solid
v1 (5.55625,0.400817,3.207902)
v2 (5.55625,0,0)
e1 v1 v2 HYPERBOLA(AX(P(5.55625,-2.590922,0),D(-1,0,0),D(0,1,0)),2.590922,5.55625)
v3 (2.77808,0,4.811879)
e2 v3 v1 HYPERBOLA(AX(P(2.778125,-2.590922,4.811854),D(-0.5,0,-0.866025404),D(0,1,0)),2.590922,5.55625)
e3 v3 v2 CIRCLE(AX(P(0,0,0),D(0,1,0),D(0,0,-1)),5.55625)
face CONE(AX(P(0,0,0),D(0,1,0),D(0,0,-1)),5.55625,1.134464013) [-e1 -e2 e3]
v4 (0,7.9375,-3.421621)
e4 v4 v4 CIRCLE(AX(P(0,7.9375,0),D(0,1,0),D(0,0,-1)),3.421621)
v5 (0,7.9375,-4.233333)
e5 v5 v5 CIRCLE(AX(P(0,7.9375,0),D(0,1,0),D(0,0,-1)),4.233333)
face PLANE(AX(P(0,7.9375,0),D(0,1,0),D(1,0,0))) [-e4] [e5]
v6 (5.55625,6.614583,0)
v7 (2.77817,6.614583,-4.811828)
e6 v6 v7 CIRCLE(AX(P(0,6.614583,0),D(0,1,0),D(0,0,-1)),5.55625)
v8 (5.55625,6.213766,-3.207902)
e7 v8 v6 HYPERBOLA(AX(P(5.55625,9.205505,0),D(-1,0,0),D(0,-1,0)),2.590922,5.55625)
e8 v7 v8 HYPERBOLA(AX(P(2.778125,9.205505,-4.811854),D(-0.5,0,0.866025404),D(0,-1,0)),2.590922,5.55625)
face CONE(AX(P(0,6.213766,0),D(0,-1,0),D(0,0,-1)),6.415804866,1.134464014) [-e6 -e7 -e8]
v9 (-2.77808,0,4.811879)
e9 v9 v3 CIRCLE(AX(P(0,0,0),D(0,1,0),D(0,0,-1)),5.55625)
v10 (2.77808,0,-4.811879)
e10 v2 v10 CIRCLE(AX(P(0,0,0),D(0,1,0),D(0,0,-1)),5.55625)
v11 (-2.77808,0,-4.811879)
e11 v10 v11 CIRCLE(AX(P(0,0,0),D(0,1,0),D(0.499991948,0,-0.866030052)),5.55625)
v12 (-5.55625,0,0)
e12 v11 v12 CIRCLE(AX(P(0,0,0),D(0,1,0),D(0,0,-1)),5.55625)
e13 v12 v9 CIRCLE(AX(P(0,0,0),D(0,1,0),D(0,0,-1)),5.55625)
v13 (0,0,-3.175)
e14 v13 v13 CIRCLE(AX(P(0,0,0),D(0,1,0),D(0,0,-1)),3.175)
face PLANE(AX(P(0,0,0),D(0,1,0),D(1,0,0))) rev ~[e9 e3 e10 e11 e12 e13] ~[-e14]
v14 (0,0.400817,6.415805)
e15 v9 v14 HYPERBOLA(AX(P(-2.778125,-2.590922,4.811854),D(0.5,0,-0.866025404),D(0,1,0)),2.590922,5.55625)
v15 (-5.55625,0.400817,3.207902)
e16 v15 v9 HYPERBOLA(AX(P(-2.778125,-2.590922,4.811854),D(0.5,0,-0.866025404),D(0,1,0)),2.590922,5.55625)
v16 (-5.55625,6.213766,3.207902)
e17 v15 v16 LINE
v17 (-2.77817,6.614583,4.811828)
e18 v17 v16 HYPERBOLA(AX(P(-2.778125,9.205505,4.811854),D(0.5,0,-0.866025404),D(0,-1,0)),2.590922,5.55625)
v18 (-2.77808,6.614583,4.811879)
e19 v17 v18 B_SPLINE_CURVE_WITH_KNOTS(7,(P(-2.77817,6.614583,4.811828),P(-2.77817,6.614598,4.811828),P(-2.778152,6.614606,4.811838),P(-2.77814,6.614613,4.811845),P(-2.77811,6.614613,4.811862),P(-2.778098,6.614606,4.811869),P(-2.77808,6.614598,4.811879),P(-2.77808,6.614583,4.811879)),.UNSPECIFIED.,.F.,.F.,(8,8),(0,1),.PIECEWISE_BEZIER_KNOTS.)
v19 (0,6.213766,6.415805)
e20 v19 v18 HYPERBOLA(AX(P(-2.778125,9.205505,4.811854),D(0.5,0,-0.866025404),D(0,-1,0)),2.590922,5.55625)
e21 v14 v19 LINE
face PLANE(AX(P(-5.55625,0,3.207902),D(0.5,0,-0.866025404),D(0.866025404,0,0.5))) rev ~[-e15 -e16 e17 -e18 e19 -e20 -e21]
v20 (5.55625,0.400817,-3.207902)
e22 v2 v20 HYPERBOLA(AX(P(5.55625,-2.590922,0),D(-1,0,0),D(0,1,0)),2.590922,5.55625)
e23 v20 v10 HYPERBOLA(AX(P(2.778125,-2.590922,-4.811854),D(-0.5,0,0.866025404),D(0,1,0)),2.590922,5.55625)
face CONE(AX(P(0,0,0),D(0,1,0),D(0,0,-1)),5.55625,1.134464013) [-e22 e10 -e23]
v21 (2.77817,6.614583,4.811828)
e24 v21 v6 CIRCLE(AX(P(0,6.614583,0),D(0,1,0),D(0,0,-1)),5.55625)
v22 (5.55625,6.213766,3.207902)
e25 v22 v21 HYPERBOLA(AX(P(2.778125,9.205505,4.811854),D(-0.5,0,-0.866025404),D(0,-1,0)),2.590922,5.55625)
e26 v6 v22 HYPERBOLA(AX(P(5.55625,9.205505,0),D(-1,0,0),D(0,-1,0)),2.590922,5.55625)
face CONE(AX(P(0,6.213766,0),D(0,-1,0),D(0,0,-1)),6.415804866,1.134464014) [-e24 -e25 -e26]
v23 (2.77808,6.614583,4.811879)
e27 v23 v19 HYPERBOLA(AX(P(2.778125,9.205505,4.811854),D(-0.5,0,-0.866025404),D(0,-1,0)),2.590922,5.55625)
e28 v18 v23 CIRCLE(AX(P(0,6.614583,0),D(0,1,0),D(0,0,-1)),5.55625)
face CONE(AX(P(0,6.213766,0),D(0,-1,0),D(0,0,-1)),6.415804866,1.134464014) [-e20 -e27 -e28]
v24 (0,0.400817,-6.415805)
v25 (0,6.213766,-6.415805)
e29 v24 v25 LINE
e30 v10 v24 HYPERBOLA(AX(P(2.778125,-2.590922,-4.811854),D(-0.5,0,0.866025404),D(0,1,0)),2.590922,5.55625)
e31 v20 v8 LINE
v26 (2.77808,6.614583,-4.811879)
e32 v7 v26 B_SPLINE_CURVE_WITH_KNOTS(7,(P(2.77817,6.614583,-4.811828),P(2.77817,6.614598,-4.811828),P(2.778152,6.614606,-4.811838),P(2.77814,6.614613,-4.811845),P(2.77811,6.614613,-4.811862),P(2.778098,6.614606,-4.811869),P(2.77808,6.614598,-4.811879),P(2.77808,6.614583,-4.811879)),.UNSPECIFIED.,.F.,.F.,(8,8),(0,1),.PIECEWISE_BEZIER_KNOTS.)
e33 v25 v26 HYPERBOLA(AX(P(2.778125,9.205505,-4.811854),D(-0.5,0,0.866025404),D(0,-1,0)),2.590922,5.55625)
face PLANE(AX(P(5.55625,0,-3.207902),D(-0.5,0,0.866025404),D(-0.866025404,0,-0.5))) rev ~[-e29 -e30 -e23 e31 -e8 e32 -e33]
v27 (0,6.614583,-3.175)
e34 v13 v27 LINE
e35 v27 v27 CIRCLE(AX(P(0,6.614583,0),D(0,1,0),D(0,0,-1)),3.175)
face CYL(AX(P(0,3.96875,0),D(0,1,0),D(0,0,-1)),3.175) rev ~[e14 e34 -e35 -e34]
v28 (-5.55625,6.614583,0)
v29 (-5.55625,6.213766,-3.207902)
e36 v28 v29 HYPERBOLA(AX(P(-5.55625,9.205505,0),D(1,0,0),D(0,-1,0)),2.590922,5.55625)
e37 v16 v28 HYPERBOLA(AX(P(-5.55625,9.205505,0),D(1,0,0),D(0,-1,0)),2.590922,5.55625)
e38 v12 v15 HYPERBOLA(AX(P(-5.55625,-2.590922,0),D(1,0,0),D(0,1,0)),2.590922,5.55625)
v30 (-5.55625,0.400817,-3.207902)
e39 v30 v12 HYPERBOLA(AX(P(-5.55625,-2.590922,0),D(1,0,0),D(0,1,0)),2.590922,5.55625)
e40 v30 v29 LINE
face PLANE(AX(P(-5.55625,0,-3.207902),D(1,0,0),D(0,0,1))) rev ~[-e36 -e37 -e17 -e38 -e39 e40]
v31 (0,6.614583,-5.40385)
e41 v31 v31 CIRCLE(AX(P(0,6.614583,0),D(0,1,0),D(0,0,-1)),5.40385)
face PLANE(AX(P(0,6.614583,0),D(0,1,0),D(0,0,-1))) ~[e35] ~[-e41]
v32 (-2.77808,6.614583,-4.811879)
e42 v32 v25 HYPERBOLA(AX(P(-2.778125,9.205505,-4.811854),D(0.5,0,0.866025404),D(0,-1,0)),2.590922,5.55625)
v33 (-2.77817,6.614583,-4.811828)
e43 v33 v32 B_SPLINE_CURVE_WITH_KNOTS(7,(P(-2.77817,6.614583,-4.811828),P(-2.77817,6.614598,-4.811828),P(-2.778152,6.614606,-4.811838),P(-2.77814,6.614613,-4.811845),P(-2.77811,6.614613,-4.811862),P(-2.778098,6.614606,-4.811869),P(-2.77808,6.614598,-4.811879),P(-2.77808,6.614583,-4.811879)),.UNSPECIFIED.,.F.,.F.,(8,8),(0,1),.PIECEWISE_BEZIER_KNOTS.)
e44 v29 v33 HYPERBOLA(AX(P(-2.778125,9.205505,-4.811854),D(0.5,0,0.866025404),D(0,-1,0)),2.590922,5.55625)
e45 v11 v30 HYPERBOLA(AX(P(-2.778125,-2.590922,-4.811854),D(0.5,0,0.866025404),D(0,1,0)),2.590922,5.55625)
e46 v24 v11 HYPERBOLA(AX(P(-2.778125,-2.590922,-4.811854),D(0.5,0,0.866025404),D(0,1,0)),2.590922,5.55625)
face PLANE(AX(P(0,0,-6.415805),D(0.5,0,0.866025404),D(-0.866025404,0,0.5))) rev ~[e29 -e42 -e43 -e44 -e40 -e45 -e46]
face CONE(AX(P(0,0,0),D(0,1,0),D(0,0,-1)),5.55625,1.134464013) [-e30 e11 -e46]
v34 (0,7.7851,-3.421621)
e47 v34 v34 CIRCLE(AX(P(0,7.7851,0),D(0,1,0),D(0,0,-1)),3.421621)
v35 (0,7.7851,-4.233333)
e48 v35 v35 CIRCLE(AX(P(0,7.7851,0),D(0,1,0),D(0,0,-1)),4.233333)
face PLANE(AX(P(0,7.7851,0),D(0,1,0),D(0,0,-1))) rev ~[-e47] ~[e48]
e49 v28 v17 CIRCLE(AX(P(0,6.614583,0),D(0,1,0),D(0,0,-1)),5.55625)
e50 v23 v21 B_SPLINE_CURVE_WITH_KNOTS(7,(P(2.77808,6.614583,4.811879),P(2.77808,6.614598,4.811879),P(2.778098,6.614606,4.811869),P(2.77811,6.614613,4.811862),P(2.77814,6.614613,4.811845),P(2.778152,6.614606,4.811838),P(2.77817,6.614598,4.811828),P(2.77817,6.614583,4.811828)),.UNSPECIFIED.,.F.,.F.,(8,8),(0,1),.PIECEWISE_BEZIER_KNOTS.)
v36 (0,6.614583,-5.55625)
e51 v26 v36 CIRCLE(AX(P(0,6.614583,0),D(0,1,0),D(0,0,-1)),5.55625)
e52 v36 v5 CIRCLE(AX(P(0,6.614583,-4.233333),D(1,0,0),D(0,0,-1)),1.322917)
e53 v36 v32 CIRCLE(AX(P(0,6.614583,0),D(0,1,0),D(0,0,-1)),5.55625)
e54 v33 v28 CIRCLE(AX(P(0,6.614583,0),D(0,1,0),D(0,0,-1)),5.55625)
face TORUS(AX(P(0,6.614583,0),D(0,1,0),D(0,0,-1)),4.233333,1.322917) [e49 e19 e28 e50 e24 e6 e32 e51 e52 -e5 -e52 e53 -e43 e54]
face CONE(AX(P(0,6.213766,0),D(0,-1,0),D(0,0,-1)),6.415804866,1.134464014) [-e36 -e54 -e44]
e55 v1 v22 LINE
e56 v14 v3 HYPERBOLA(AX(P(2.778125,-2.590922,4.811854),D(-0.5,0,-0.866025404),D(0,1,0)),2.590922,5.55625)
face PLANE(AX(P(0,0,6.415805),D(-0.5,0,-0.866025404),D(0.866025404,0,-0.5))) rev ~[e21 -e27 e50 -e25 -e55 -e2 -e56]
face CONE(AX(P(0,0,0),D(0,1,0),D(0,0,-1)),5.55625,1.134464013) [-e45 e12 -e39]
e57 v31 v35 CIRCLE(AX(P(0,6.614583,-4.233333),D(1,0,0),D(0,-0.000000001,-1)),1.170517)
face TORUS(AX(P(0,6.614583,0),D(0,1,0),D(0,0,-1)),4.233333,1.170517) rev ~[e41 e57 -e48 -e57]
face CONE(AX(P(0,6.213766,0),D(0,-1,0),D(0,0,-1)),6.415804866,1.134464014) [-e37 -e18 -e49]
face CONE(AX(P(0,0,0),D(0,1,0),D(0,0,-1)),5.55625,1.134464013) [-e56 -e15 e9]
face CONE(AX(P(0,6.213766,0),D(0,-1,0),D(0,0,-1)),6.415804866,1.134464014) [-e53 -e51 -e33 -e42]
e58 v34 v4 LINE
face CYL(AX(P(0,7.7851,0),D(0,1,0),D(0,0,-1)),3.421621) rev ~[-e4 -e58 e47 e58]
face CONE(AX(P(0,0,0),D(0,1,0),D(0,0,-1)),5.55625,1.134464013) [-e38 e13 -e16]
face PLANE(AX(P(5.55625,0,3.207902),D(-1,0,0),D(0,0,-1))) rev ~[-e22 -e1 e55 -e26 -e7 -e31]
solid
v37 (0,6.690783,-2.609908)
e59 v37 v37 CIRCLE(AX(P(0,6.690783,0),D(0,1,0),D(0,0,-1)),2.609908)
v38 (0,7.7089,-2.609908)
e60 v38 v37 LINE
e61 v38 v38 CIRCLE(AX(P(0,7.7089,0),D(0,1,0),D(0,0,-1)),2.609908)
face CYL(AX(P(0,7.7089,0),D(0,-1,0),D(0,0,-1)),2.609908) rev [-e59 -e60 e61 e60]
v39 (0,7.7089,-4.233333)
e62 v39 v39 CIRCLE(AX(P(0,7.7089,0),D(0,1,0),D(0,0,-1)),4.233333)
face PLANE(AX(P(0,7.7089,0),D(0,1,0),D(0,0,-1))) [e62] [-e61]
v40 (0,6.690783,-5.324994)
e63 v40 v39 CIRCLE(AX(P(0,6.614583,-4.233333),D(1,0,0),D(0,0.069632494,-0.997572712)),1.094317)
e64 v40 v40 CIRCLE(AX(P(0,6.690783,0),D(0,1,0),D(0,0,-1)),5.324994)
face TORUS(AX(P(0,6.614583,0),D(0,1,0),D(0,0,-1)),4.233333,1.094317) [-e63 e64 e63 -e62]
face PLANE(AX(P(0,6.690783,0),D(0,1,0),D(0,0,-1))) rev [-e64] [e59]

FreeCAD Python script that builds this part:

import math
import FreeCAD as App
import Part
import Sketcher
Q = App.Units.Quantity


def add_polygon(sketch, points):
    """Adds a closed chain of lines whose ends are joined by coincident constraints."""
    first, n = sketch.GeometryCount, len(points)
    for a, b in zip(points, points[1:] + points[:1]):
        sketch.addGeometry(Part.LineSegment(App.Vector(*a, 0), App.Vector(*b, 0)), False)
    for i in range(n):
        sketch.addConstraint(Sketcher.Constraint("Coincident", first + i, 2, first + (i + 1) % n, 1))

doc = App.newDocument("Part")
body = doc.addObject("PartDesign::Body", "Body")

sketch1 = body.newObject("Sketcher::SketchObject", "Sketch")
sketch1.AttachmentSupport = (doc.getObject("XZ_Plane"), [""])
sketch1.MapMode = "FlatFace"
add_polygon(sketch1, [(0, -6), (-6, -3), (-6, 3), (0, 6), (6, 3), (6, -3)])
sketch1.addConstraint([
    Sketcher.Constraint("Vertical", 1),
    Sketcher.Constraint("Vertical", 4),
    Sketcher.Constraint("Symmetric", 0, 2, 3, 2, -1, 1),
    Sketcher.Constraint("Symmetric", 2, 2, 5, 2, -1, 1),
    Sketcher.Constraint("PointOnObject", 2, 2, -2),
    Sketcher.Constraint("Parallel", 2, 5),
    Sketcher.Constraint("Horizontal", 1, 2, 3, 2),
    Sketcher.Constraint("Angle", 0, Q("150 deg")),
    Sketcher.Constraint("DistanceX", 0, 2, -1, 1, Q("0.21875 in")),
    Sketcher.Constraint("DistanceY", 1, 1, 1, 2, Q("6.415805 mm")),
])
pad1 = body.newObject("PartDesign::Pad", "Pad")
pad1.Profile = sketch1
pad1.Length = Q("0.3125 in")
pad1.Reversed = True
body2 = doc.addObject("PartDesign::Body", "Body001")

sketch2 = body2.newObject("Sketcher::SketchObject", "Sketch001")
sketch2.AttachmentSupport = (doc.getObject("YZ_Plane001"), [""])
sketch2.MapMode = "FlatFace"
add_polygon(sketch2, [(7.9, 0), (0, 0), (0, -3.2), (7.9, -3.2)])
sketch2.addConstraint([
    Sketcher.Constraint("Horizontal", 0),
    Sketcher.Constraint("Vertical", 1),
    Sketcher.Constraint("Horizontal", 2),
    Sketcher.Constraint("Vertical", 3),
    Sketcher.Constraint("Coincident", 0, 2, -1, 1),
    Sketcher.Constraint("DistanceX", 0, 2, 0, 1, Q("0.3125 in")),
    Sketcher.Constraint("DistanceY", 1, 2, 1, 1, Q("0.125 in")),
])
revolution = body2.newObject("PartDesign::Revolution", "Revolution")
revolution.Profile = sketch2
revolution.ReferenceAxis = (sketch2, ["H_Axis"])
revolution.Angle = 360
doc.recompute()

boolean = body.newObject("PartDesign::Boolean", "Boolean")
boolean.Type = "Cut"
boolean.addObjects([body2])

sketch3 = body.newObject("Sketcher::SketchObject", "Sketch002")
sketch3.AttachmentSupport = (doc.getObject("YZ_Plane"), [""])
sketch3.MapMode = "FlatFace"
sketch3.addGeometry([
    Part.LineSegment(App.Vector(0, -5.6, 0), App.Vector(0, 0, 0)),
    Part.LineSegment(App.Vector(0, 0, 0), App.Vector(-1.3, 0, 0)),
    Part.LineSegment(App.Vector(-1.3, 0, 0), App.Vector(-1.3, -7.7, 0)),
    Part.LineSegment(App.Vector(-1.3, -7.7, 0), App.Vector(9.2, -7.7, 0)),
    Part.LineSegment(App.Vector(9.2, -7.7, 0), App.Vector(9.2, -4.2, 0)),
    Part.LineSegment(App.Vector(9.2, -4.2, 0), App.Vector(7.9, -4.2, 0)),
    Part.ArcOfCircle(Part.Circle(App.Vector(6.6, -4.2, 0), App.Vector(0, 0, 1), 1.3), math.radians(-90), math.radians(0)),
    Part.LineSegment(App.Vector(6.6, -5.6, 0), App.Vector(6.2, -6.4, 0)),
    Part.LineSegment(App.Vector(6.2, -6.4, 0), App.Vector(0.4, -6.4, 0)),
    Part.LineSegment(App.Vector(0.4, -6.4, 0), App.Vector(0, -5.6, 0)),
], False)
sketch3.addConstraint([
    Sketcher.Constraint("Coincident", 0, 2, 1, 1),
    Sketcher.Constraint("Coincident", 1, 2, 2, 1),
    Sketcher.Constraint("Coincident", 2, 2, 3, 1),
    Sketcher.Constraint("Coincident", 3, 2, 4, 1),
    Sketcher.Constraint("Coincident", 4, 2, 5, 1),
    Sketcher.Constraint("Coincident", 5, 2, 6, 2),
    Sketcher.Constraint("Coincident", 6, 1, 7, 1),
    Sketcher.Constraint("Coincident", 7, 2, 8, 1),
    Sketcher.Constraint("Coincident", 8, 2, 9, 1),
    Sketcher.Constraint("Coincident", 9, 2, 0, 1),
    Sketcher.Constraint("Vertical", 0),
    Sketcher.Constraint("Horizontal", 1),
    Sketcher.Constraint("Vertical", 2),
    Sketcher.Constraint("Horizontal", 3),
    Sketcher.Constraint("Vertical", 4),
    Sketcher.Constraint("Horizontal", 5),
    Sketcher.Constraint("Horizontal", 8),
    Sketcher.Constraint("Coincident", 0, 2, -1, 1),
    Sketcher.Constraint("Horizontal", 6, 3, 4, 2),
    Sketcher.Constraint("Horizontal", 6, 1, 9, 2),
    Sketcher.Constraint("Equal", 1, 5),
    Sketcher.Constraint("Equal", 7, 9),
    Sketcher.Constraint("Angle", 7, Q("-115 deg")),
    Sketcher.Constraint("DistanceX", 1, 2, 1, 1, Q("0.05 in")),
    Sketcher.Constraint("DistanceY", 0, 1, 0, 2, Q("0.21875 in")),
    Sketcher.Constraint("DistanceY", 3, 2, 7, 2, Q("0.05 in")),
    Sketcher.Constraint("DistanceX", 3, 1, 3, 2, Q("0.4125 in")),
    Sketcher.Constraint("Radius", 6, Q("1.322917 mm")),
    Sketcher.Constraint("DistanceX", 8, 2, 8, 1, Q("5.812949 mm")),
    Sketcher.Constraint("DistanceY", 4, 1, 4, 2, Q("3.452472 mm")),
])
groove = body.newObject("PartDesign::Groove", "Groove")
groove.Profile = sketch3
groove.ReferenceAxis = (sketch3, ["H_Axis"])
groove.Angle = 360

sketch4 = body.newObject("Sketcher::SketchObject", "Sketch003")
sketch4.AttachmentSupport = (doc.getObject("YZ_Plane"), [""])
sketch4.MapMode = "FlatFace"
sketch4.addGeometry([
    Part.LineSegment(App.Vector(6.6, 0, 0), App.Vector(6.6, -5.4, 0)),
    Part.ArcOfCircle(Part.Circle(App.Vector(6.6, -4.2, 0), App.Vector(0, 0, 1), 1.2), math.radians(-90), math.radians(0)),
    Part.LineSegment(App.Vector(7.8, -4.2, 0), App.Vector(7.8, -3.4, 0)),
    Part.LineSegment(App.Vector(7.8, -3.4, 0), App.Vector(9.2, -3.4, 0)),
    Part.LineSegment(App.Vector(9.2, -3.4, 0), App.Vector(9.2, 0, 0)),
    Part.LineSegment(App.Vector(9.2, 0, 0), App.Vector(6.6, 0, 0)),
], False)
sketch4.addConstraint([
    Sketcher.Constraint("Coincident", 0, 2, 1, 1),
    Sketcher.Constraint("Tangent", 1, 2, 2, 1),
    Sketcher.Constraint("Coincident", 2, 2, 3, 1),
    Sketcher.Constraint("Coincident", 3, 2, 4, 1),
    Sketcher.Constraint("Coincident", 4, 2, 5, 1),
    Sketcher.Constraint("Coincident", 5, 2, 0, 1),
    Sketcher.Constraint("Vertical", 0),
    Sketcher.Constraint("Vertical", 2),
    Sketcher.Constraint("Horizontal", 3),
    Sketcher.Constraint("Vertical", 4),
    Sketcher.Constraint("Horizontal", 5),
    Sketcher.Constraint("PointOnObject", 4, 2, -1),
    Sketcher.Constraint("Vertical", 1, 3, 0, 2),
    Sketcher.Constraint("DistanceX", 3, 1, 3, 2, Q("0.056 in")),
    Sketcher.Constraint("DistanceX", -1, 1, 1, 2, Q("0.3065 in")),
    Sketcher.Constraint("Radius", 1, Q("1.170517 mm")),
    Sketcher.Constraint("DistanceY", 0, 2, 0, 1, Q("5.40385 mm")),
    Sketcher.Constraint("DistanceY", 4, 1, 4, 2, Q("3.421621 mm")),
])
groove2 = body.newObject("PartDesign::Groove", "Groove001")
groove2.Profile = sketch4
groove2.ReferenceAxis = (sketch4, ["H_Axis"])
groove2.Angle = 360
body3 = doc.addObject("PartDesign::Body", "Body002")

sketch5 = body3.newObject("Sketcher::SketchObject", "Sketch004")
sketch5.AttachmentSupport = (doc.getObject("YZ_Plane002"), [""])
sketch5.MapMode = "FlatFace"
sketch5.addGeometry([
    Part.LineSegment(App.Vector(6.7, -2.6, 0), App.Vector(6.7, -5.3, 0)),
    Part.ArcOfCircle(Part.Circle(App.Vector(6.6, -4.2, 0), App.Vector(0, 0, 1), 1.1), math.radians(-86), math.radians(0)),
    Part.LineSegment(App.Vector(7.7, -4.2, 0), App.Vector(7.7, -2.6, 0)),
    Part.LineSegment(App.Vector(7.7, -2.6, 0), App.Vector(6.7, -2.6, 0)),
], False)
sketch5.addConstraint([
    Sketcher.Constraint("Coincident", 0, 2, 1, 1),
    Sketcher.Constraint("Tangent", 1, 2, 2, 1),
    Sketcher.Constraint("Coincident", 2, 2, 3, 1),
    Sketcher.Constraint("Coincident", 3, 2, 0, 1),
    Sketcher.Constraint("Vertical", 0),
    Sketcher.Constraint("Vertical", 2),
    Sketcher.Constraint("Horizontal", 3),
    Sketcher.Constraint("DistanceX", 1, 3, 0, 2, Q("0.003 in")),
    Sketcher.Constraint("DistanceX", -1, 1, 1, 2, Q("0.3035 in")),
    Sketcher.Constraint("Radius", 1, Q("1.094317 mm")),
    Sketcher.Constraint("DistanceY", 0, 2, 0, 1, Q("2.715085 mm")),
    Sketcher.Constraint("DistanceY", 2, 2, -1, 1, Q("2.609908 mm")),
])
revolution2 = body3.newObject("PartDesign::Revolution", "Revolution001")
revolution2.Profile = sketch5
revolution2.ReferenceAxis = (sketch5, ["H_Axis"])
revolution2.Angle = 360

doc.recompute()
